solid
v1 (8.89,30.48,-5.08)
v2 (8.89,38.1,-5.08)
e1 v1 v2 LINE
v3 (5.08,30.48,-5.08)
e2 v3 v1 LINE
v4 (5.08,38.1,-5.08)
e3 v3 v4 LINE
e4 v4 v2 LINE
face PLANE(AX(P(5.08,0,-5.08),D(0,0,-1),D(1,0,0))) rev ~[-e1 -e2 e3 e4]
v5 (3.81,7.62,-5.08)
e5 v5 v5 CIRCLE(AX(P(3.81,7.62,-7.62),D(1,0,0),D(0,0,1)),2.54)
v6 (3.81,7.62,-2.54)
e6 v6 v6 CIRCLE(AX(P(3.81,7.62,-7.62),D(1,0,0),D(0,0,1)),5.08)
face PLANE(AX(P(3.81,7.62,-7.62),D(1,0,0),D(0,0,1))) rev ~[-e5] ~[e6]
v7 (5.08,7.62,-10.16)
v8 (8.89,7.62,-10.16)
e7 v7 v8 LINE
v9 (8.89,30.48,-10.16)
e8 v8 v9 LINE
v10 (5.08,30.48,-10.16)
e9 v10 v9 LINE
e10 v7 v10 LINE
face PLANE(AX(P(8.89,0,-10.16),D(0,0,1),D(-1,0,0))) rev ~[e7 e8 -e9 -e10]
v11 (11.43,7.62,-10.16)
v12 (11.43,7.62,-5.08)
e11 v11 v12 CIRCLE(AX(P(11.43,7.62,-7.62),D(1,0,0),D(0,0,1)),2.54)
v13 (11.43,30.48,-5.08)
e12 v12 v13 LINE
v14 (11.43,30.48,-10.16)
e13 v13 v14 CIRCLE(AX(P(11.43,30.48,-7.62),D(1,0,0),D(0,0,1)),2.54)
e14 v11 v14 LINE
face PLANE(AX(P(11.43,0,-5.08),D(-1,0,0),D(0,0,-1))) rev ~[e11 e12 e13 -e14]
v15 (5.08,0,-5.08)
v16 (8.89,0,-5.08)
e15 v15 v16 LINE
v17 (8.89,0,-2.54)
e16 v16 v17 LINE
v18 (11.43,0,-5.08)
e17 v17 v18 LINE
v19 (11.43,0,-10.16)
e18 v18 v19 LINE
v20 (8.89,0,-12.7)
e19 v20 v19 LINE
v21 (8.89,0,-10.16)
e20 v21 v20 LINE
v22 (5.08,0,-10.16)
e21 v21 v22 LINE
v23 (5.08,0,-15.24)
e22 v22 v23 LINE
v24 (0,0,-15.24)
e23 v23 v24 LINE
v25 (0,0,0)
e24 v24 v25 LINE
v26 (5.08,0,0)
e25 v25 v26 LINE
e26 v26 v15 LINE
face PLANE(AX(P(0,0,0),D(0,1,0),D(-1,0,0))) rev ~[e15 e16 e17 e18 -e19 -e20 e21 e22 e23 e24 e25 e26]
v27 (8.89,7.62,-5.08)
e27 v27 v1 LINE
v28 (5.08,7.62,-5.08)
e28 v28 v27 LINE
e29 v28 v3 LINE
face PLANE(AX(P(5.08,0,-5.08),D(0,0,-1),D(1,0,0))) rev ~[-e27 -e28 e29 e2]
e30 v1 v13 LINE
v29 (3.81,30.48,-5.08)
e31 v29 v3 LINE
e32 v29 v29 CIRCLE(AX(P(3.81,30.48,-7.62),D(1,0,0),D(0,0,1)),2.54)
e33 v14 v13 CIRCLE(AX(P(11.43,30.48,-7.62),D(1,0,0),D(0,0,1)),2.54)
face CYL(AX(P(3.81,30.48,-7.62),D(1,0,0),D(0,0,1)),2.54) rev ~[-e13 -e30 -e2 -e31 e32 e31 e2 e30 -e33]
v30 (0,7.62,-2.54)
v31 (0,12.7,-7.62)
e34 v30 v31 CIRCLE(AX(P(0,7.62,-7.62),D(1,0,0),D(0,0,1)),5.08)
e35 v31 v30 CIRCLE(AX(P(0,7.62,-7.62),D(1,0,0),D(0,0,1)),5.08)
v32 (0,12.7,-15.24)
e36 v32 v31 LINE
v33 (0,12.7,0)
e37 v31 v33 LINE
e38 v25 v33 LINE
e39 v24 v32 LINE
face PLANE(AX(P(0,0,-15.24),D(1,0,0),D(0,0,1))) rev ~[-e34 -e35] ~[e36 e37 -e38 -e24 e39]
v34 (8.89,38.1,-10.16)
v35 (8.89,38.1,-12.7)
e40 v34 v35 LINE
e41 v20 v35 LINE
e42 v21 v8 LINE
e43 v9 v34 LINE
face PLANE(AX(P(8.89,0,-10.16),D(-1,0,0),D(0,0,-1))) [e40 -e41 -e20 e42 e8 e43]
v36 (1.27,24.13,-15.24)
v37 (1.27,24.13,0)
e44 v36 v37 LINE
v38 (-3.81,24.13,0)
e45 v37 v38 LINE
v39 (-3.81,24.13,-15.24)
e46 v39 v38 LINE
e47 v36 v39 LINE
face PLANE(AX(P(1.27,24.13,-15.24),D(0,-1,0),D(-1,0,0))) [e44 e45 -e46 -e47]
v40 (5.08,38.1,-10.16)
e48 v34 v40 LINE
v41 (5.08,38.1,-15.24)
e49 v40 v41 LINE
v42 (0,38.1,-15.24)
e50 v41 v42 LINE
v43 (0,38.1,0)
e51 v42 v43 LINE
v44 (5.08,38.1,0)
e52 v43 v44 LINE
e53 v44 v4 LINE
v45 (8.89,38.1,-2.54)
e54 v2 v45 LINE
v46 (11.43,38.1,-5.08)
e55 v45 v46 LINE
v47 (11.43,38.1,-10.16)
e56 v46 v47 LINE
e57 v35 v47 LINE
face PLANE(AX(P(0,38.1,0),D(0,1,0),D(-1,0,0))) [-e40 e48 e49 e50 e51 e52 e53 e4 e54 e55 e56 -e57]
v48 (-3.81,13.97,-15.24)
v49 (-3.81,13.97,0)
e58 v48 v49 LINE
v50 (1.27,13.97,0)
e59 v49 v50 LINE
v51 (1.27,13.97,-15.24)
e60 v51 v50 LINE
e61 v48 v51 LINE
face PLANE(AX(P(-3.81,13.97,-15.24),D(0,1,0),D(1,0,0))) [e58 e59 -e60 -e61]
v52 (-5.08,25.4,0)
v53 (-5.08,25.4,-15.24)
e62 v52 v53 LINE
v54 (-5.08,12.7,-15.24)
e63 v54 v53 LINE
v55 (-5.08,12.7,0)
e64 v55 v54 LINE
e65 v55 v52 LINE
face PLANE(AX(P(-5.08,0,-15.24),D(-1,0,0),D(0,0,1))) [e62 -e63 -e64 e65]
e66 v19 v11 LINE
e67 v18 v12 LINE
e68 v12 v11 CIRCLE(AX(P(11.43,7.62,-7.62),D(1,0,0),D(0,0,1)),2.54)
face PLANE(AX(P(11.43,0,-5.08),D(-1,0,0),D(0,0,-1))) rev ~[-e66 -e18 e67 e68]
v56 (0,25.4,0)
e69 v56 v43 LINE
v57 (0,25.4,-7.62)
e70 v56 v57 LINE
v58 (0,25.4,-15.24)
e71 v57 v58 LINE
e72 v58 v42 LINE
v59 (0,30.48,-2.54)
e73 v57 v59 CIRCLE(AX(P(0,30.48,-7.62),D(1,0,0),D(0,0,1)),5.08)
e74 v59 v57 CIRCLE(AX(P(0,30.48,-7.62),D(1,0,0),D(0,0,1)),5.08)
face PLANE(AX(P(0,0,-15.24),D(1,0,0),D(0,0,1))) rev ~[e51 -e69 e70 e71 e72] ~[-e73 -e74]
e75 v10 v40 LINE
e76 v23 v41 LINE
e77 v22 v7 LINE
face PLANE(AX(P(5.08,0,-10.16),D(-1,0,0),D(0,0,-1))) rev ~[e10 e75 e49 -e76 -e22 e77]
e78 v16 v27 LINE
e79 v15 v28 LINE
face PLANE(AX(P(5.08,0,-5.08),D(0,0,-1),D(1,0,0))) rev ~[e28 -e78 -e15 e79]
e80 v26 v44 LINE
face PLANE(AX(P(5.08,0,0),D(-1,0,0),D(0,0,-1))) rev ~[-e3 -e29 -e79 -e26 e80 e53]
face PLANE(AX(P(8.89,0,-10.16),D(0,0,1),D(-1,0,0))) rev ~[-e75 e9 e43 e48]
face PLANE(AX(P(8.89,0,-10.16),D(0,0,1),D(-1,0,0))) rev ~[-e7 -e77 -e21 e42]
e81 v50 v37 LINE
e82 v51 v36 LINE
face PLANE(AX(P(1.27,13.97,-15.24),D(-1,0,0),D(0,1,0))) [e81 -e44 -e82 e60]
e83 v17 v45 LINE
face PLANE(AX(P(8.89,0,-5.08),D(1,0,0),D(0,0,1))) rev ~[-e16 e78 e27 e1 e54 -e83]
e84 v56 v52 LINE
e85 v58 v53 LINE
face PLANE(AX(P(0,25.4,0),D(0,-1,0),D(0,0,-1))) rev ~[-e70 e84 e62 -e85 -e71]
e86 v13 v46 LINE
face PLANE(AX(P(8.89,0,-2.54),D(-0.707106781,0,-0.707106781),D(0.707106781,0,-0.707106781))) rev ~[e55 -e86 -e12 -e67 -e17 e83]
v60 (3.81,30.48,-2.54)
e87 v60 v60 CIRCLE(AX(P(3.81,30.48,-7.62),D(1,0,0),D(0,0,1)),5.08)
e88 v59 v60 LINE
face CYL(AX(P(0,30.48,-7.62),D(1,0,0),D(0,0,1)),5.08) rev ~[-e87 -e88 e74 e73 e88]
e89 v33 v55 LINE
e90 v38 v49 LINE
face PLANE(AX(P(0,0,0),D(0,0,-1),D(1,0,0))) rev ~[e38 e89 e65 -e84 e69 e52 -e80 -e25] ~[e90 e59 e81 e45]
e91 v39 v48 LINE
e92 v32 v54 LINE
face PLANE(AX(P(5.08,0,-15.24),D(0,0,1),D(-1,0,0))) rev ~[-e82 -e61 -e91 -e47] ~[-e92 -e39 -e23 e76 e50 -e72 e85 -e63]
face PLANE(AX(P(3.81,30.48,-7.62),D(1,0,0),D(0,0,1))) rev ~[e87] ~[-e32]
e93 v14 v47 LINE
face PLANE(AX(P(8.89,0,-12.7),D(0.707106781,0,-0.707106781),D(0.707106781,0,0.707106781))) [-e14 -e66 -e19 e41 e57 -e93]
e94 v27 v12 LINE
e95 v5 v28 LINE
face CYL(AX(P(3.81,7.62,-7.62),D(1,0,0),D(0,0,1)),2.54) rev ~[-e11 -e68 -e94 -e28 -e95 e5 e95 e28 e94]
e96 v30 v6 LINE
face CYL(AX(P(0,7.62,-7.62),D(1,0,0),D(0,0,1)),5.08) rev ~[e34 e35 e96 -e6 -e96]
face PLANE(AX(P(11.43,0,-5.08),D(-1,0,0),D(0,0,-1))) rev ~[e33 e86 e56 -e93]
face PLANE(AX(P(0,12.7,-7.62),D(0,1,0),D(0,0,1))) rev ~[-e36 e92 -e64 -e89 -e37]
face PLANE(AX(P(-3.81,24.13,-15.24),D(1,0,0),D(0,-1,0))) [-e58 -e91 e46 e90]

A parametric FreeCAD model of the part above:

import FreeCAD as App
import Part
import Sketcher
from FreeCAD import Vector
Q = App.Units.Quantity


def add_polygon(sketch, points):
    """Adds a closed chain of lines whose ends are joined by coincident constraints."""
    first, n = sketch.GeometryCount, len(points)
    for a, b in zip(points, points[1:] + points[:1]):
        sketch.addGeometry(Part.LineSegment(App.Vector(*a, 0), App.Vector(*b, 0)), False)
    for i in range(n):
        sketch.addConstraint(Sketcher.Constraint("Coincident", first + i, 2, first + (i + 1) % n, 1))

doc = App.newDocument("Part")
params = doc.addObject("Spreadsheet::Sheet", "Params")
for row, (alias, value) in enumerate([
    ("sketch1_width", "0.2 in"),
    ("sketch1_height", "0.1 in"),
    ("sketch1_width2", "0.15 in"),
    ("pad1_length", "1.5 in"),
    ("sketch2_diameter", "0.2 in"),
    ("hole_diameter", "0.2 in"),
    ("hole_cbore_diameter", "0.4 in"),
    ("hole_cbore_depth", "0.15 in"),
    ("sketch3_width", "0.5 in"),
    ("sketch3_height", "0.6 in"),
    ("pad2_length", "0.2 in"),
    ("sketch4_width", "0.2 in"),
    ("sketch4_height", "0.4 in"),
    ("pocket1_length", "0.6 in"),
], start=1):
    params.set(f"A{row}", alias)
    params.set(f"B{row}", "=" + value)
    params.setAlias(f"B{row}", alias)

body = doc.addObject("PartDesign::Body", "Body")

sketch1 = body.newObject("Sketcher::SketchObject", "Sketch")
sketch1.AttachmentSupport = (doc.getObject("XZ_Plane"), [""])
sketch1.MapMode = "FlatFace"
add_polygon(sketch1, [(0, -15.2), (0, 0), (5.1, 0), (5.1, -5.1), (8.9, -5.1), (8.9, -2.5), (11.4, -5.1), (11.4, -10.2), (8.9, -12.7), (8.9, -10.2), (5.1, -10.2), (5.1, -15.2)])
sketch1.addConstraint([
    Sketcher.Constraint("Vertical", 0),
    Sketcher.Constraint("Horizontal", 1),
    Sketcher.Constraint("Vertical", 2),
    Sketcher.Constraint("Horizontal", 3),
    Sketcher.Constraint("Vertical", 4),
    Sketcher.Constraint("Vertical", 6),
    Sketcher.Constraint("Vertical", 8),
    Sketcher.Constraint("Horizontal", 9),
    Sketcher.Constraint("Vertical", 10),
    Sketcher.Constraint("Horizontal", 11),
    Sketcher.Constraint("Coincident", 0, 2, -1, 1),
    Sketcher.Constraint("Perpendicular", 5, 7),
    Sketcher.Constraint("Horizontal", 3, 2, 5, 2),
    Sketcher.Constraint("Horizontal", 6, 2, 8, 2),
    Sketcher.Constraint("Vertical", 4, 2, 7, 2),
    Sketcher.Constraint("Vertical", 2, 2, 9, 2),
    Sketcher.Constraint("Equal", 11, 2),
    Sketcher.Constraint("Equal", 2, 6),
    Sketcher.Constraint("Equal", 4, 8),
    Sketcher.Constraint("Equal", 6, 10),
    Sketcher.Constraint("DistanceX", 1, 1, 1, 2, Q("0.2 in")),
    Sketcher.Constraint("DistanceY", 4, 1, 4, 2, Q("0.1 in")),
    Sketcher.Constraint("DistanceX", 3, 1, 3, 2, Q("0.15 in")),
])
sketch1.setExpression("Constraints[32]", "Params.sketch1_width")
sketch1.setExpression("Constraints[33]", "Params.sketch1_height")
sketch1.setExpression("Constraints[34]", "Params.sketch1_width2")
pad1 = body.newObject("PartDesign::Pad", "Pad")
pad1.Profile = sketch1
pad1.setExpression("Length", "Params.pad1_length")
pad1.Reversed = True

sketch2 = body.newObject("Sketcher::SketchObject", "Sketch001")
sketch2.AttachmentSupport = (doc.getObject("YZ_Plane"), [""])
sketch2.MapMode = "FlatFace"
sketch2.addGeometry([
    Part.Circle(Vector(7.6, -7.6, 0), Vector(0, 0, 1), 2.5),
    Part.Circle(Vector(30.5, -7.6, 0), Vector(0, 0, 1), 2.5),
], False)
sketch2.addConstraint([
    Sketcher.Constraint("Equal", 0, 1),
    Sketcher.Constraint("Horizontal", 0, 3, 1, 3),
    Sketcher.Constraint("Diameter", 0, Q("0.2 in")),
    Sketcher.Constraint("DistanceX", -1, 1, 0, 3, Q("0.3 in")),
    Sketcher.Constraint("DistanceY", 0, 3, -1, 1, Q("0.3 in")),
    Sketcher.Constraint("DistanceX", -1, 1, 1, 3, Q("1.2 in")),
])
sketch2.setExpression("Constraints[2]", "Params.sketch2_diameter")
doc.recompute()
hole = body.newObject("PartDesign::Hole", "Hole")
hole.Profile = sketch2
hole.ThreadType = "None"
hole.setExpression("Diameter", "Params.hole_diameter")
hole.DepthType = "ThroughAll"
hole.HoleCutType = "Counterbore"
hole.setExpression("HoleCutDiameter", "Params.hole_cbore_diameter")
hole.setExpression("HoleCutDepth", "Params.hole_cbore_depth")
hole.Reversed = True

sketch3 = body.newObject("Sketcher::SketchObject", "Sketch002")
sketch3.AttachmentSupport = (doc.getObject("YZ_Plane"), [""])
sketch3.MapMode = "FlatFace"
add_polygon(sketch3, [(13, -15), (13, 0), (25, 0), (25, -15)])
sketch3.addConstraint([
    Sketcher.Constraint("Vertical", 0),
    Sketcher.Constraint("Horizontal", 1),
    Sketcher.Constraint("Vertical", 2),
    Sketcher.Constraint("Horizontal", 3),
    Sketcher.Constraint("PointOnObject", 0, 2, -1),
    Sketcher.Constraint("DistanceX", 1, 1, 1, 2, Q("0.5 in")),
    Sketcher.Constraint("DistanceX", -1, 1, 0, 2, Q("0.5 in")),
    Sketcher.Constraint("DistanceY", 0, 1, 0, 2, Q("0.6 in")),
])
sketch3.setExpression("Constraints[9]", "Params.sketch3_width")
sketch3.setExpression("Constraints[11]", "Params.sketch3_height")
pad2 = body.newObject("PartDesign::Pad", "Pad001")
pad2.Profile = sketch3
pad2.setExpression("Length", "Params.pad2_length")
pad2.Reversed = True

sketch4 = body.newObject("Sketcher::SketchObject", "Sketch003")
sketch4.AttachmentSupport = (doc.getObject("XY_Plane"), [""])
sketch4.MapMode = "FlatFace"
sketch4.AttachmentOffset = App.Placement(Vector(0, 0, -0.6 * 25.4), App.Rotation())
add_polygon(sketch4, [(1, 14), (-4, 14), (-4, 24), (1, 24)])
sketch4.addConstraint([
    Sketcher.Constraint("Horizontal", 0),
    Sketcher.Constraint("Vertical", 1),
    Sketcher.Constraint("Horizontal", 2),
    Sketcher.Constraint("Vertical", 3),
    Sketcher.Constraint("DistanceX", 0, 2, 0, 1, Q("0.2 in")),
    Sketcher.Constraint("DistanceY", 1, 1, 1, 2, Q("0.4 in")),
    Sketcher.Constraint("DistanceX", -1, 1, 2, 2, Q("0.05 in")),
    Sketcher.Constraint("DistanceY", -1, 1, 0, 2, Q("0.55 in")),
])
sketch4.setExpression("Constraints[8]", "Params.sketch4_width")
sketch4.setExpression("Constraints[9]", "Params.sketch4_height")
pocket1 = body.newObject("PartDesign::Pocket", "Pocket")
pocket1.Profile = sketch4
pocket1.setExpression("Length", "Params.pocket1_length")
pocket1.Reversed = True

doc.recompute()
